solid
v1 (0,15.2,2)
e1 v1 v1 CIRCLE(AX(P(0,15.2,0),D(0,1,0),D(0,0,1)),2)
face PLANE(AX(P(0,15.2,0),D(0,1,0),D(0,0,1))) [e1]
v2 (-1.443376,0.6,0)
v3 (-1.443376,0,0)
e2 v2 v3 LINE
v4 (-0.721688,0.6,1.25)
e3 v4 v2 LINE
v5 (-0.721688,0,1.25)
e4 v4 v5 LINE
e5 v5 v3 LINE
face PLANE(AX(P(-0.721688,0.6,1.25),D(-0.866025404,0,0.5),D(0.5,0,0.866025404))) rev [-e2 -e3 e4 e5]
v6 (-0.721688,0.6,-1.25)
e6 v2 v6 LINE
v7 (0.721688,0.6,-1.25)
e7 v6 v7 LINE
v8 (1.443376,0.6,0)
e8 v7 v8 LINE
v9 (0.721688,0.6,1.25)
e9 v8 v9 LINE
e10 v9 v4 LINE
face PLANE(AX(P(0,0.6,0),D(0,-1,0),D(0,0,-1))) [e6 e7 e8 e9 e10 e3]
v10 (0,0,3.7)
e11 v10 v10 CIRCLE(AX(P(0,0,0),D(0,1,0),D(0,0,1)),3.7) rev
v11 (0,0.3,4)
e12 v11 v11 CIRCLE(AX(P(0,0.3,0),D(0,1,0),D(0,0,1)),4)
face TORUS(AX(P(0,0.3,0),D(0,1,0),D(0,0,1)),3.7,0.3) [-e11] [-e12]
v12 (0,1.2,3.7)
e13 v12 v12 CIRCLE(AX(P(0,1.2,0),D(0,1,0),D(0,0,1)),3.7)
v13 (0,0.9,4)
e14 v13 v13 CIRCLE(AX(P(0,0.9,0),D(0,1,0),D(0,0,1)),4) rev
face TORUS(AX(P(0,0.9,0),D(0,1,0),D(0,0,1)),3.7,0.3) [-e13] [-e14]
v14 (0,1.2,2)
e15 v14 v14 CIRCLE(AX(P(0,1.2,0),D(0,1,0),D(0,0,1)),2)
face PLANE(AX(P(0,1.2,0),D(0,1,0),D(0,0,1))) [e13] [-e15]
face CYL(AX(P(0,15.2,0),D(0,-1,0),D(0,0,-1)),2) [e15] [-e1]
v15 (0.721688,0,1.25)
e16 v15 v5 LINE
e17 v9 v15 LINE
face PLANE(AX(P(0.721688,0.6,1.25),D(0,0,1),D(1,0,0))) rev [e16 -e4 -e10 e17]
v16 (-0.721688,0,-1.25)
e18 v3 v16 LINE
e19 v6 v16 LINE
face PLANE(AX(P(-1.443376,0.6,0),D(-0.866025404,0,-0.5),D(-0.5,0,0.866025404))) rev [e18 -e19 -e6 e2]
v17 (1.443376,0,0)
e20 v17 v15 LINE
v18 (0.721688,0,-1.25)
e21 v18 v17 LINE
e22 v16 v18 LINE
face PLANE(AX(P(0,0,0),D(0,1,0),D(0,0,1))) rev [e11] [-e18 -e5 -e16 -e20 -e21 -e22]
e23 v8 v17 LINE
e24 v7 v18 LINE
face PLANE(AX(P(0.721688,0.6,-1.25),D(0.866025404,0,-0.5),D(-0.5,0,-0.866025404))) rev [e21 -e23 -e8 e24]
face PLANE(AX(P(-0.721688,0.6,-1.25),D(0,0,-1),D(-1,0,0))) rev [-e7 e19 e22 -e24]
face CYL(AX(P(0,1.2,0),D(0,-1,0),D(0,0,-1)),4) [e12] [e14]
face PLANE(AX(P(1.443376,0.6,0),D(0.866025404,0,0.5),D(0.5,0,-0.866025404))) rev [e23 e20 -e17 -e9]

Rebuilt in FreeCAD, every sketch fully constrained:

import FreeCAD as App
import Part
import Sketcher
Q = App.Units.Quantity


def edges_at(feature, points):
    """Names of the edges that pass closest to the given points."""
    edges = feature.Shape.Edges
    near = lambda p: min(range(len(edges)), key=lambda i: edges[i].distToShape(Part.Vertex(*p))[0])
    return sorted({f"Edge{near(p) + 1}" for p in points})

doc = App.newDocument("Part")
params = doc.addObject("Spreadsheet::Sheet", "Params")
for row, (alias, value) in enumerate([
    ("sketch1_diameter", "8 mm"),
    ("pad1_length", "1.2 mm"),
    ("sketch2_diameter", "4 mm"),
    ("pad2_length", "14 mm"),
    ("fillet_radius", "0.3 mm"),
    ("pocket1_length", "0.6 mm"),
], start=1):
    params.set(f"A{row}", alias)
    params.set(f"B{row}", "=" + value)
    params.setAlias(f"B{row}", alias)

body = doc.addObject("PartDesign::Body", "Body")

# Sketch on XZ plane
sketch1 = body.newObject("Sketcher::SketchObject", "Sketch")
sketch1.AttachmentSupport = (doc.getObject("XZ_Plane"), [""])
sketch1.MapMode = "FlatFace"
sketch1.addGeometry(Part.Circle(App.Vector(0, 0, 0), App.Vector(0, 0, 1), 4), False)
sketch1.addConstraint(Sketcher.Constraint("Coincident", 0, 3, -1, 1))
sketch1.addConstraint(Sketcher.Constraint("Diameter", 0, 8.0))
sketch1.setExpression("Constraints[1]", "Params.sketch1_diameter")
pad1 = body.newObject("PartDesign::Pad", "Pad")
pad1.Profile = sketch1
pad1.setExpression("Length", "Params.pad1_length")
pad1.Reversed = True

# Sketch on XZ plane
sketch2 = body.newObject("Sketcher::SketchObject", "Sketch001")
sketch2.AttachmentSupport = (doc.getObject("XZ_Plane"), [""])
sketch2.MapMode = "FlatFace"
sketch2.AttachmentOffset = App.Placement(App.Vector(0, 0, -1.2), App.Rotation())
sketch2.addGeometry(Part.Circle(App.Vector(0, 0, 0), App.Vector(0, 0, 1), 2), False)
sketch2.addConstraint(Sketcher.Constraint("Coincident", 0, 3, -1, 1))
sketch2.addConstraint(Sketcher.Constraint("Diameter", 0, 4.0))
sketch2.setExpression("Constraints[1]", "Params.sketch2_diameter")
pad2 = body.newObject("PartDesign::Pad", "Pad001")
pad2.Profile = sketch2
pad2.setExpression("Length", "Params.pad2_length")
pad2.Reversed = True
doc.recompute()

fillet = body.newObject("PartDesign::Fillet", "Fillet")
fillet.Base = (pad2, edges_at(pad2, [(0, 0, -4), (0, 1.2, -4)]))
fillet.setExpression("Radius", "Params.fillet_radius")

# Sketch on XZ plane
sketch3 = body.newObject("Sketcher::SketchObject", "Sketch002")
sketch3.AttachmentSupport = (doc.getObject("XZ_Plane"), [""])
sketch3.MapMode = "FlatFace"
sketch3.addGeometry(Part.LineSegment(App.Vector(1.4, 0, 0), App.Vector(0.7, 1.2, 0)), False)
sketch3.addGeometry(Part.LineSegment(App.Vector(0.7, 1.2, 0), App.Vector(-0.7, 1.2, 0)), False)
sketch3.addGeometry(Part.LineSegment(App.Vector(-0.7, 1.2, 0), App.Vector(-1.4, 0, 0)), False)
sketch3.addGeometry(Part.LineSegment(App.Vector(-1.4, 0, 0), App.Vector(-0.7, -1.2, 0)), False)
sketch3.addGeometry(Part.LineSegment(App.Vector(-0.7, -1.2, 0), App.Vector(0.7, -1.2, 0)), False)
sketch3.addGeometry(Part.LineSegment(App.Vector(0.7, -1.2, 0), App.Vector(1.4, 0, 0)), False)
sketch3.addConstraint(Sketcher.Constraint("Coincident", 0, 2, 1, 1))
sketch3.addConstraint(Sketcher.Constraint("Coincident", 1, 2, 2, 1))
sketch3.addConstraint(Sketcher.Constraint("Coincident", 2, 2, 3, 1))
sketch3.addConstraint(Sketcher.Constraint("Coincident", 3, 2, 4, 1))
sketch3.addConstraint(Sketcher.Constraint("Coincident", 4, 2, 5, 1))
sketch3.addConstraint(Sketcher.Constraint("Coincident", 5, 2, 0, 1))
sketch3.addConstraint(Sketcher.Constraint("Horizontal", 1))
sketch3.addConstraint(Sketcher.Constraint("Horizontal", 4))
sketch3.addConstraint(Sketcher.Constraint("Symmetric", 0, 2, 3, 2, -1, 1))
sketch3.addConstraint(Sketcher.Constraint("Symmetric", 2, 2, 5, 2, -1, 1))
sketch3.addConstraint(Sketcher.Constraint("PointOnObject", 2, 2, -1))
sketch3.addConstraint(Sketcher.Constraint("Parallel", 2, 5))
sketch3.addConstraint(Sketcher.Constraint("Vertical", 1, 2, 3, 2))
sketch3.addConstraint(Sketcher.Constraint("Angle", 0, Q("120 deg")))
sketch3.addConstraint(Sketcher.Constraint("DistanceY", 3, 2, 1, 2, 2.5))
sketch3.addConstraint(Sketcher.Constraint("DistanceX", 1, 2, 1, 1, 1.443376))
pocket1 = body.newObject("PartDesign::Pocket", "Pocket")
pocket1.Profile = sketch3
pocket1.setExpression("Length", "Params.pocket1_length")

doc.recompute()
